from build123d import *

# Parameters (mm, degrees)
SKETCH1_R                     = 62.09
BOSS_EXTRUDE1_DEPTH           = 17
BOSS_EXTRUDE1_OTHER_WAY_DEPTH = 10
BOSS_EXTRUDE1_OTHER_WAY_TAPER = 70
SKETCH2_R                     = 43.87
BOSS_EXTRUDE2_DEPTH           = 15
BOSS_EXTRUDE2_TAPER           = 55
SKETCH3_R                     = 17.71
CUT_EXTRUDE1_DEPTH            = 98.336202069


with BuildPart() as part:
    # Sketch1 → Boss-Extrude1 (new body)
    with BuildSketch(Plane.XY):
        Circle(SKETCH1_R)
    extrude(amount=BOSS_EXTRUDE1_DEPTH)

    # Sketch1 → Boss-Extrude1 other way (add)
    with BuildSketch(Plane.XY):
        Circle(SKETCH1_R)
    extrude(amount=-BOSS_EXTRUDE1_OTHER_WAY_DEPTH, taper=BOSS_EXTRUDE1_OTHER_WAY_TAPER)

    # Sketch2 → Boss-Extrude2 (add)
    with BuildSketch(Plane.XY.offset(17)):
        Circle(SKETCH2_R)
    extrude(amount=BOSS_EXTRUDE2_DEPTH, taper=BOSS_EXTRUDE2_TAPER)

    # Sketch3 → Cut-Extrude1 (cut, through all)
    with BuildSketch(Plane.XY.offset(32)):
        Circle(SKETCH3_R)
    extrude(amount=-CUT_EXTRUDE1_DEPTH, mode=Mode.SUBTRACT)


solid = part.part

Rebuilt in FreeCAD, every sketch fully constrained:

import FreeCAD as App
import Part
import Sketcher

doc = App.newDocument("Part")
params = doc.addObject("Spreadsheet::Sheet", "Params")
for row, (alias, value) in enumerate([
    ("sketch1_diameter", "124.18 mm"),
    ("pad1_length", "17 mm"),
    ("sketch2_diameter", "124.18 mm"),
    ("pad2_length", "10 mm"),
    ("pad2_taper", "-70 deg"),
    ("sketch3_diameter", "87.74 mm"),
    ("pad3_length", "15 mm"),
    ("pad3_taper", "-55 deg"),
    ("sketch4_diameter", "35.42 mm"),
], start=1):
    params.set(f"A{row}", alias)
    params.set(f"B{row}", "=" + value)
    params.setAlias(f"B{row}", alias)

body = doc.addObject("PartDesign::Body", "Body")

sketch1 = body.newObject("Sketcher::SketchObject", "Sketch")
sketch1.AttachmentSupport = (doc.getObject("XY_Plane"), [""])
sketch1.MapMode = "FlatFace"
sketch1.addGeometry(Part.Circle(App.Vector(0, 0, 0), App.Vector(0, 0, 1), 62), False)
sketch1.addConstraint([
    Sketcher.Constraint("Coincident", 0, 3, -1, 1),
    Sketcher.Constraint("Diameter", 0, 124.18),
])
sketch1.setExpression("Constraints[1]", "Params.sketch1_diameter")
pad1 = body.newObject("PartDesign::Pad", "Pad")
pad1.Profile = sketch1
pad1.setExpression("Length", "Params.pad1_length")

sketch2 = body.newObject("Sketcher::SketchObject", "Sketch001")
sketch2.AttachmentSupport = (doc.getObject("XY_Plane"), [""])
sketch2.MapMode = "FlatFace"
sketch2.addGeometry(Part.Circle(App.Vector(0, 0, 0), App.Vector(0, 0, 1), 62), False)
sketch2.addConstraint([
    Sketcher.Constraint("Coincident", 0, 3, -1, 1),
    Sketcher.Constraint("Diameter", 0, 124.18),
])
sketch2.setExpression("Constraints[1]", "Params.sketch2_diameter")
pad2 = body.newObject("PartDesign::Pad", "Pad001")
pad2.Profile = sketch2
pad2.setExpression("Length", "Params.pad2_length")
pad2.Reversed = True
pad2.setExpression("TaperAngle", "Params.pad2_taper")

sketch3 = body.newObject("Sketcher::SketchObject", "Sketch002")
sketch3.AttachmentSupport = (doc.getObject("XY_Plane"), [""])
sketch3.MapMode = "FlatFace"
sketch3.AttachmentOffset = App.Placement(App.Vector(0, 0, 17), App.Rotation())
sketch3.addGeometry(Part.Circle(App.Vector(0, 0, 0), App.Vector(0, 0, 1), 44), False)
sketch3.addConstraint([
    Sketcher.Constraint("Coincident", 0, 3, -1, 1),
    Sketcher.Constraint("Diameter", 0, 87.74),
])
sketch3.setExpression("Constraints[1]", "Params.sketch3_diameter")
pad3 = body.newObject("PartDesign::Pad", "Pad002")
pad3.Profile = sketch3
pad3.setExpression("Length", "Params.pad3_length")
pad3.setExpression("TaperAngle", "Params.pad3_taper")

sketch4 = body.newObject("Sketcher::SketchObject", "Sketch003")
sketch4.AttachmentSupport = (doc.getObject("XY_Plane"), [""])
sketch4.MapMode = "FlatFace"
sketch4.AttachmentOffset = App.Placement(App.Vector(0, 0, 32), App.Rotation())
sketch4.addGeometry(Part.Circle(App.Vector(0, 0, 0), App.Vector(0, 0, 1), 18), False)
sketch4.addConstraint([
    Sketcher.Constraint("Coincident", 0, 3, -1, 1),
    Sketcher.Constraint("Diameter", 0, 35.42),
])
sketch4.setExpression("Constraints[1]", "Params.sketch4_diameter")
pocket1 = body.newObject("PartDesign::Pocket", "Pocket")
pocket1.Profile = sketch4
pocket1.Type = "ThroughAll"

doc.recompute()
